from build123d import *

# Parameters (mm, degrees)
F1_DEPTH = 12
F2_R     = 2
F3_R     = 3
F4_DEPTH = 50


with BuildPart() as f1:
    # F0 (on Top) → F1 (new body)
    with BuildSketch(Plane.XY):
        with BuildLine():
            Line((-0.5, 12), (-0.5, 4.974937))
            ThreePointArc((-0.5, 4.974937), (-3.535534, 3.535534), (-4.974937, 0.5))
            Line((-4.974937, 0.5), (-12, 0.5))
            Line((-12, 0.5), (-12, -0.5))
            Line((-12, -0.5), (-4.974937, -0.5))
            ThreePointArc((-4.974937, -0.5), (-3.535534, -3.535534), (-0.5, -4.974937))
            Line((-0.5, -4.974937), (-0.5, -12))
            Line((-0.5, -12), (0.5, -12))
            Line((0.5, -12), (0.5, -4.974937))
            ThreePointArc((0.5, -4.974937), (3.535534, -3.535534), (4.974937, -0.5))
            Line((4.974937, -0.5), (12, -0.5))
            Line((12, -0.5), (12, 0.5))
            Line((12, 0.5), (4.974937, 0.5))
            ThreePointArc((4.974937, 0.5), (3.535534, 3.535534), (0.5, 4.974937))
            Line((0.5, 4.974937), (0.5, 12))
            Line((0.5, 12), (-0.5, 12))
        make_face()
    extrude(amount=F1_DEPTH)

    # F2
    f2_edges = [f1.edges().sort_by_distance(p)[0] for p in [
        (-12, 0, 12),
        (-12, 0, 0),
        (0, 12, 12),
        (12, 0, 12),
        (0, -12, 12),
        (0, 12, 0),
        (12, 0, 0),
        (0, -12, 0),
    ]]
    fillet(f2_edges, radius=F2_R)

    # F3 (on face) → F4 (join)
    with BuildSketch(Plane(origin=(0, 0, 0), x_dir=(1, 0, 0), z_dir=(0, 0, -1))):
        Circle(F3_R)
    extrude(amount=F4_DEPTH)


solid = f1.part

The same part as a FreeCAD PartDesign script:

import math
import FreeCAD as App
import Part
import Sketcher


def edges_at(feature, points):
    """Names of the edges that pass closest to the given points."""
    edges = feature.Shape.Edges
    near = lambda p: min(range(len(edges)), key=lambda i: edges[i].distToShape(Part.Vertex(*p))[0])
    return sorted({f"Edge{near(p) + 1}" for p in points})

doc = App.newDocument("Part")
body = doc.addObject("PartDesign::Body", "Body")

# Sketch on XY plane
sketch1 = body.newObject("Sketcher::SketchObject", "Sketch")
sketch1.AttachmentSupport = (doc.getObject("XY_Plane"), [""])
sketch1.MapMode = "FlatFace"
sketch1.addGeometry(Part.LineSegment(App.Vector(-0.5, 12, 0), App.Vector(-0.5, 5, 0)), False)
sketch1.addGeometry(Part.ArcOfCircle(Part.Circle(App.Vector(0, 0, 0), App.Vector(0, 0, 1), 5), math.radians(96), math.radians(174)), False)
sketch1.addGeometry(Part.LineSegment(App.Vector(-5, 0.5, 0), App.Vector(-12, 0.5, 0)), False)
sketch1.addGeometry(Part.LineSegment(App.Vector(-12, 0.5, 0), App.Vector(-12, -0.5, 0)), False)
sketch1.addGeometry(Part.LineSegment(App.Vector(-12, -0.5, 0), App.Vector(-5, -0.5, 0)), False)
sketch1.addGeometry(Part.ArcOfCircle(Part.Circle(App.Vector(0, 0, 0), App.Vector(0, 0, 1), 5), math.radians(-174), math.radians(-96)), False)
sketch1.addGeometry(Part.LineSegment(App.Vector(-0.5, -5, 0), App.Vector(-0.5, -12, 0)), False)
sketch1.addGeometry(Part.LineSegment(App.Vector(-0.5, -12, 0), App.Vector(0.5, -12, 0)), False)
sketch1.addGeometry(Part.LineSegment(App.Vector(0.5, -12, 0), App.Vector(0.5, -5, 0)), False)
sketch1.addGeometry(Part.ArcOfCircle(Part.Circle(App.Vector(0, 0, 0), App.Vector(0, 0, 1), 5), math.radians(-84), math.radians(-6)), False)
sketch1.addGeometry(Part.LineSegment(App.Vector(5, -0.5, 0), App.Vector(12, -0.5, 0)), False)
sketch1.addGeometry(Part.LineSegment(App.Vector(12, -0.5, 0), App.Vector(12, 0.5, 0)), False)
sketch1.addGeometry(Part.LineSegment(App.Vector(12, 0.5, 0), App.Vector(5, 0.5, 0)), False)
sketch1.addGeometry(Part.ArcOfCircle(Part.Circle(App.Vector(0, 0, 0), App.Vector(0, 0, 1), 5), math.radians(6), math.radians(84)), False)
sketch1.addGeometry(Part.LineSegment(App.Vector(0.5, 5, 0), App.Vector(0.5, 12, 0)), False)
sketch1.addGeometry(Part.LineSegment(App.Vector(0.5, 12, 0), App.Vector(-0.5, 12, 0)), False)
sketch1.addConstraint(Sketcher.Constraint("Coincident", 0, 2, 1, 1))
sketch1.addConstraint(Sketcher.Constraint("Coincident", 1, 2, 2, 1))
sketch1.addConstraint(Sketcher.Constraint("Coincident", 2, 2, 3, 1))
sketch1.addConstraint(Sketcher.Constraint("Coincident", 3, 2, 4, 1))
sketch1.addConstraint(Sketcher.Constraint("Coincident", 4, 2, 5, 1))
sketch1.addConstraint(Sketcher.Constraint("Coincident", 5, 2, 6, 1))
sketch1.addConstraint(Sketcher.Constraint("Coincident", 6, 2, 7, 1))
sketch1.addConstraint(Sketcher.Constraint("Coincident", 7, 2, 8, 1))
sketch1.addConstraint(Sketcher.Constraint("Coincident", 8, 2, 9, 1))
sketch1.addConstraint(Sketcher.Constraint("Coincident", 9, 2, 10, 1))
sketch1.addConstraint(Sketcher.Constraint("Coincident", 10, 2, 11, 1))
sketch1.addConstraint(Sketcher.Constraint("Coincident", 11, 2, 12, 1))
sketch1.addConstraint(Sketcher.Constraint("Coincident", 12, 2, 13, 1))
sketch1.addConstraint(Sketcher.Constraint("Coincident", 13, 2, 14, 1))
sketch1.addConstraint(Sketcher.Constraint("Coincident", 14, 2, 15, 1))
sketch1.addConstraint(Sketcher.Constraint("Coincident", 15, 2, 0, 1))
sketch1.addConstraint(Sketcher.Constraint("Vertical", 0))
sketch1.addConstraint(Sketcher.Constraint("Horizontal", 2))
sketch1.addConstraint(Sketcher.Constraint("Vertical", 3))
sketch1.addConstraint(Sketcher.Constraint("Horizontal", 4))
sketch1.addConstraint(Sketcher.Constraint("Vertical", 6))
sketch1.addConstraint(Sketcher.Constraint("Horizontal", 7))
sketch1.addConstraint(Sketcher.Constraint("Vertical", 8))
sketch1.addConstraint(Sketcher.Constraint("Horizontal", 10))
sketch1.addConstraint(Sketcher.Constraint("Vertical", 11))
sketch1.addConstraint(Sketcher.Constraint("Horizontal", 12))
sketch1.addConstraint(Sketcher.Constraint("Vertical", 14))
sketch1.addConstraint(Sketcher.Constraint("Horizontal", 15))
sketch1.addConstraint(Sketcher.Constraint("Coincident", 1, 3, -1, 1))
sketch1.addConstraint(Sketcher.Constraint("Coincident", 5, 3, -1, 1))
sketch1.addConstraint(Sketcher.Constraint("Coincident", 9, 3, -1, 1))
sketch1.addConstraint(Sketcher.Constraint("Coincident", 13, 3, -1, 1))
sketch1.addConstraint(Sketcher.Constraint("Equal", 1, 5))
sketch1.addConstraint(Sketcher.Constraint("Equal", 5, 9))
sketch1.addConstraint(Sketcher.Constraint("Equal", 9, 13))
sketch1.addConstraint(Sketcher.Constraint("Symmetric", 2, 2, 10, 2, -1, 1))
sketch1.addConstraint(Sketcher.Constraint("Symmetric", 6, 2, 14, 2, -1, 1))
sketch1.addConstraint(Sketcher.Constraint("Horizontal", 5, 2, 8, 2))
sketch1.addConstraint(Sketcher.Constraint("Horizontal", 4, 2, 9, 2))
sketch1.addConstraint(Sketcher.Constraint("Horizontal", 2, 2, 11, 2))
sketch1.addConstraint(Sketcher.Constraint("Horizontal", 0, 2, 13, 2))
sketch1.addConstraint(Sketcher.Constraint("Equal", 12, 0))
sketch1.addConstraint(Sketcher.Constraint("Equal", 15, 3))
sketch1.addConstraint(Sketcher.Constraint("Radius", 1, 4.999999))
sketch1.addConstraint(Sketcher.Constraint("DistanceX", 7, 1, 7, 2, 1.0))
sketch1.addConstraint(Sketcher.Constraint("DistanceX", 2, 2, -1, 1, 12.0))
pad1 = body.newObject("PartDesign::Pad", "Pad")
pad1.Profile = sketch1
pad1.Length = 12
doc.recompute()

fillet = body.newObject("PartDesign::Fillet", "Fillet")
fillet.Base = (pad1, edges_at(pad1, [
    (-12, 0, 12),
    (-12, 0, 0),
    (0, 12, 12),
    (12, 0, 12),
    (0, -12, 12),
    (0, 12, 0),
    (12, 0, 0),
    (0, -12, 0),
]))
fillet.Radius = 2

# Sketch on XY plane
sketch2 = body.newObject("Sketcher::SketchObject", "Sketch001")
sketch2.AttachmentSupport = (doc.getObject("XY_Plane"), [""])
sketch2.MapMode = "FlatFace"
sketch2.addGeometry(Part.Circle(App.Vector(0, 0, 0), App.Vector(0, 0, 1), 3), False)
sketch2.addConstraint(Sketcher.Constraint("Coincident", 0, 3, -1, 1))
sketch2.addConstraint(Sketcher.Constraint("Diameter", 0, 6.0))
pad2 = body.newObject("PartDesign::Pad", "Pad001")
pad2.Profile = sketch2
pad2.Length = 50
pad2.Reversed = True

doc.recompute()
